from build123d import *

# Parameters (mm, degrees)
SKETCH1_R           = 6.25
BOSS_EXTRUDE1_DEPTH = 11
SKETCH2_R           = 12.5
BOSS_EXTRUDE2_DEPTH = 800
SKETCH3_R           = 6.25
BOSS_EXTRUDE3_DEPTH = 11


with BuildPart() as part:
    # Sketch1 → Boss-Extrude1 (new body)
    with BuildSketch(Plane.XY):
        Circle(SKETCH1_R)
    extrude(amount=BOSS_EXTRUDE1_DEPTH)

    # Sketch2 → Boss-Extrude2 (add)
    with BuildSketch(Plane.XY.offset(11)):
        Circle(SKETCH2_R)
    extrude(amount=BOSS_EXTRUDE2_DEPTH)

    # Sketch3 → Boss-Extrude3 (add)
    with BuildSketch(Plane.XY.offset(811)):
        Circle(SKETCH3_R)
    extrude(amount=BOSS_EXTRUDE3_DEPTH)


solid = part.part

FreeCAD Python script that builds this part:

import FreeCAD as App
import Part
import Sketcher
from FreeCAD import Vector
Q = App.Units.Quantity

doc = App.newDocument("Part")
body = doc.addObject("PartDesign::Body", "Body")

# Sketch on XY plane
sketch1 = body.newObject("Sketcher::SketchObject", "Sketch")
sketch1.AttachmentSupport = (doc.getObject("XY_Plane"), [""])
sketch1.MapMode = "FlatFace"
sketch1.addGeometry(Part.Circle(Vector(0, 0, 0), Vector(0, 0, 1), 6), False)
sketch1.addConstraint(Sketcher.Constraint("Coincident", 0, 3, -1, 1))
sketch1.addConstraint(Sketcher.Constraint("Diameter", 0, Q("12.5 mm")))
pad1 = body.newObject("PartDesign::Pad", "Pad")
pad1.Profile = sketch1
pad1.Length = 11

# Sketch on XY plane
sketch2 = body.newObject("Sketcher::SketchObject", "Sketch001")
sketch2.AttachmentSupport = (doc.getObject("XY_Plane"), [""])
sketch2.MapMode = "FlatFace"
sketch2.AttachmentOffset = App.Placement(Vector(0, 0, 11), App.Rotation())
sketch2.addGeometry(Part.Circle(Vector(0, 0, 0), Vector(0, 0, 1), 12), False)
sketch2.addConstraint(Sketcher.Constraint("Coincident", 0, 3, -1, 1))
sketch2.addConstraint(Sketcher.Constraint("Diameter", 0, Q("25 mm")))
pad2 = body.newObject("PartDesign::Pad", "Pad001")
pad2.Profile = sketch2
pad2.Length = 800

# Sketch on XY plane
sketch3 = body.newObject("Sketcher::SketchObject", "Sketch002")
sketch3.AttachmentSupport = (doc.getObject("XY_Plane"), [""])
sketch3.MapMode = "FlatFace"
sketch3.AttachmentOffset = App.Placement(Vector(0, 0, 811), App.Rotation())
sketch3.addGeometry(Part.Circle(Vector(0, 0, 0), Vector(0, 0, 1), 6), False)
sketch3.addConstraint(Sketcher.Constraint("Coincident", 0, 3, -1, 1))
sketch3.addConstraint(Sketcher.Constraint("Diameter", 0, Q("12.5 mm")))
pad3 = body.newObject("PartDesign::Pad", "Pad002")
pad3.Profile = sketch3
pad3.Length = 11

doc.recompute()
